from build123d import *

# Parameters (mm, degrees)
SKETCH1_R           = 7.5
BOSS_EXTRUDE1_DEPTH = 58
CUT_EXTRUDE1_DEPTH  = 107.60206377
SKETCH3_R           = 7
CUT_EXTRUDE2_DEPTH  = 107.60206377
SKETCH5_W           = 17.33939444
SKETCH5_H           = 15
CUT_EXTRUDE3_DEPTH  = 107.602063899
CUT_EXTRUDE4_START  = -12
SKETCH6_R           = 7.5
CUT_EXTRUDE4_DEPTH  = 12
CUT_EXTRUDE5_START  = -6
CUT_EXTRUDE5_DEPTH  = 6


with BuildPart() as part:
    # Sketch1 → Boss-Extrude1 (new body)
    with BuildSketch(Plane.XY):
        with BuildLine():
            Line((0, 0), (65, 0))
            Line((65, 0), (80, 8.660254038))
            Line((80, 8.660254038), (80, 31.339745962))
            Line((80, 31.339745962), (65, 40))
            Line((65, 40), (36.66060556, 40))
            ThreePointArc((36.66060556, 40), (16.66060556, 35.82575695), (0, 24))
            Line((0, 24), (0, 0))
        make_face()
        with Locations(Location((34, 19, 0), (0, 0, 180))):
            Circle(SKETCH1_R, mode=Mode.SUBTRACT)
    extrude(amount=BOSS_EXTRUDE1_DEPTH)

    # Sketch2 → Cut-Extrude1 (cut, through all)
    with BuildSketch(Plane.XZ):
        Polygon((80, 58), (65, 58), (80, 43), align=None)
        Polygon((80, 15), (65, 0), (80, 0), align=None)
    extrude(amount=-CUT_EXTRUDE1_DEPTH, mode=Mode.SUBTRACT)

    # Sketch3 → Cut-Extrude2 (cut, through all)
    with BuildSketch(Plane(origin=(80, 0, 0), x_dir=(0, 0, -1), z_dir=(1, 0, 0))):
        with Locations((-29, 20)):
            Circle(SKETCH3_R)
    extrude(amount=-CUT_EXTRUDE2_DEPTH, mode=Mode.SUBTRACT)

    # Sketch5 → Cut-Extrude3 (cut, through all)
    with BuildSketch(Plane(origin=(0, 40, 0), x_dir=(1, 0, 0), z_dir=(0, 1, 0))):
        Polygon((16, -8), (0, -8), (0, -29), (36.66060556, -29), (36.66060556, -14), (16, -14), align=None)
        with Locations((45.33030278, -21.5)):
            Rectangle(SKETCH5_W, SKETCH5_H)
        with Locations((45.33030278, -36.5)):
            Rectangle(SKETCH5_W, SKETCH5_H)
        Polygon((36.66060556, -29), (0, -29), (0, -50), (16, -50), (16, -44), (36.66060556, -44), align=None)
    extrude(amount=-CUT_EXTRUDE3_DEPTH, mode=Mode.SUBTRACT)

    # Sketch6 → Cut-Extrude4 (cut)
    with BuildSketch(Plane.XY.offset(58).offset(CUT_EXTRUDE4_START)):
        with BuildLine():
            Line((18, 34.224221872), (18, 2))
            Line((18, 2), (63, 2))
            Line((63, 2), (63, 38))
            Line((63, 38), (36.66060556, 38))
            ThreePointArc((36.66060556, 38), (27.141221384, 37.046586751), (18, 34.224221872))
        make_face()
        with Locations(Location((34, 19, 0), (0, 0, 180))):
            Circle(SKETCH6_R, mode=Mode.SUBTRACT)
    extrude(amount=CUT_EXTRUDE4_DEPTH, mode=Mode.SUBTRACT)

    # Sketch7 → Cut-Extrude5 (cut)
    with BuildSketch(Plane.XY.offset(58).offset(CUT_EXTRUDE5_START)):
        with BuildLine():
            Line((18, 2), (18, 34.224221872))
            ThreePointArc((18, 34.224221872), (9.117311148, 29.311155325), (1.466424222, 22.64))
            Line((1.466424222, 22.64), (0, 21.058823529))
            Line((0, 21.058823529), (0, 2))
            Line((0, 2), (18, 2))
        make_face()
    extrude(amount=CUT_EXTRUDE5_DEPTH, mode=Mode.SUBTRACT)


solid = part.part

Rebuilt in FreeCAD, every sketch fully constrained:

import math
import FreeCAD as App
import Part
import Sketcher
Q = App.Units.Quantity

doc = App.newDocument("Part")
body = doc.addObject("PartDesign::Body", "Body")

sketch1 = doc.addObject("Sketcher::SketchObject", "Sketch")
body.addObject(sketch1)
sketch1.AttachmentSupport = (doc.XY_Plane, [""])
sketch1.MapMode = "FlatFace"
sketch1.addGeometry([
    Part.LineSegment(App.Vector(0, 0, 0), App.Vector(65, 0, 0)),
    Part.LineSegment(App.Vector(65, 0, 0), App.Vector(80, 9, 0)),
    Part.LineSegment(App.Vector(80, 9, 0), App.Vector(80, 31, 0)),
    Part.LineSegment(App.Vector(80, 31, 0), App.Vector(65, 40, 0)),
    Part.LineSegment(App.Vector(65, 40, 0), App.Vector(37, 40, 0)),
    Part.ArcOfCircle(Part.Circle(App.Vector(37, -10, 0), App.Vector(0, 0, 1), 50), math.radians(90), math.radians(137)),
    Part.LineSegment(App.Vector(0, 24, 0), App.Vector(0, 0, 0)),
    Part.Circle(App.Vector(34, 19, 0), App.Vector(0, 0, 1), 8),
], False)
sketch1.addConstraint([
    Sketcher.Constraint("Coincident", 0, 2, 1, 1),
    Sketcher.Constraint("Coincident", 1, 2, 2, 1),
    Sketcher.Constraint("Coincident", 2, 2, 3, 1),
    Sketcher.Constraint("Coincident", 3, 2, 4, 1),
    Sketcher.Constraint("Tangent", 4, 2, 5, 1),
    Sketcher.Constraint("Coincident", 5, 2, 6, 1),
    Sketcher.Constraint("Coincident", 6, 2, 0, 1),
    Sketcher.Constraint("Horizontal", 0),
    Sketcher.Constraint("Vertical", 2),
    Sketcher.Constraint("Horizontal", 4),
    Sketcher.Constraint("Vertical", 6),
    Sketcher.Constraint("Coincident", 6, 2, -1, 1),
    Sketcher.Constraint("Vertical", 0, 2, 3, 2),
    Sketcher.Constraint("Equal", 1, 3),
    Sketcher.Constraint("Diameter", 7, Q("15 mm")),
    Sketcher.Constraint("Radius", 5, Q("50 mm")),
    Sketcher.Constraint("DistanceX", 0, 1, 0, 2, Q("65 mm")),
    Sketcher.Constraint("DistanceY", 6, 2, 6, 1, Q("24 mm")),
    Sketcher.Constraint("Angle", 1, Q("30 deg")),
    Sketcher.Constraint("DistanceY", 5, 3, -1, 1, Q("10 mm")),
    Sketcher.Constraint("DistanceX", -1, 1, 7, 3, Q("34 mm")),
    Sketcher.Constraint("DistanceY", -1, 1, 7, 3, Q("19 mm")),
    Sketcher.Constraint("DistanceX", -1, 1, 1, 2, Q("80 mm")),
])
pad1 = doc.addObject("PartDesign::Pad", "Pad")
body.addObject(pad1)
pad1.Profile = sketch1
pad1.Length = 58

sketch2 = doc.addObject("Sketcher::SketchObject", "Sketch001")
body.addObject(sketch2)
sketch2.AttachmentSupport = (doc.XZ_Plane, [""])
sketch2.MapMode = "FlatFace"
sketch2.addGeometry([
    Part.LineSegment(App.Vector(80, 58, 0), App.Vector(65, 58, 0)),
    Part.LineSegment(App.Vector(65, 58, 0), App.Vector(80, 43, 0)),
    Part.LineSegment(App.Vector(80, 43, 0), App.Vector(80, 58, 0)),
    Part.LineSegment(App.Vector(80, 15, 0), App.Vector(65, 0, 0)),
    Part.LineSegment(App.Vector(65, 0, 0), App.Vector(80, 0, 0)),
    Part.LineSegment(App.Vector(80, 0, 0), App.Vector(80, 15, 0)),
], False)
sketch2.addConstraint([
    Sketcher.Constraint("Coincident", 0, 2, 1, 1),
    Sketcher.Constraint("Coincident", 1, 2, 2, 1),
    Sketcher.Constraint("Coincident", 2, 2, 0, 1),
    Sketcher.Constraint("Coincident", 3, 2, 4, 1),
    Sketcher.Constraint("Coincident", 4, 2, 5, 1),
    Sketcher.Constraint("Coincident", 5, 2, 3, 1),
    Sketcher.Constraint("Horizontal", 0),
    Sketcher.Constraint("Vertical", 2),
    Sketcher.Constraint("Horizontal", 4),
    Sketcher.Constraint("Vertical", 5),
    Sketcher.Constraint("PointOnObject", 3, 2, -1),
    Sketcher.Constraint("Perpendicular", 1, 3),
    Sketcher.Constraint("Vertical", 0, 2, 3, 2),
    Sketcher.Constraint("Vertical", 2, 2, 4, 2),
    Sketcher.Constraint("Equal", 4, 2),
    Sketcher.Constraint("DistanceX", 0, 2, 0, 1, Q("15 mm")),
    Sketcher.Constraint("DistanceX", -1, 1, 0, 2, Q("65 mm")),
    Sketcher.Constraint("DistanceY", -1, 1, 0, 2, Q("58 mm")),
])
pocket1 = doc.addObject("PartDesign::Pocket", "Pocket")
body.addObject(pocket1)
pocket1.Profile = sketch2
pocket1.Type = "ThroughAll"

sketch3 = doc.addObject("Sketcher::SketchObject", "Sketch002")
body.addObject(sketch3)
sketch3.AttachmentSupport = (doc.YZ_Plane, [""])
sketch3.MapMode = "FlatFace"
sketch3.AttachmentOffset = App.Placement(App.Vector(0, 0, 80), App.Rotation())
sketch3.addGeometry(Part.Circle(App.Vector(20, 29, 0), App.Vector(0, 0, 1), 7), False)
sketch3.addConstraint([
    Sketcher.Constraint("Diameter", 0, Q("14 mm")),
    Sketcher.Constraint("DistanceX", -1, 1, 0, 3, Q("20 mm")),
    Sketcher.Constraint("DistanceY", -1, 1, 0, 3, Q("29 mm")),
])
pocket2 = doc.addObject("PartDesign::Pocket", "Pocket001")
body.addObject(pocket2)
pocket2.Profile = sketch3
pocket2.Type = "ThroughAll"

sketch4 = doc.addObject("Sketcher::SketchObject", "Sketch003")
body.addObject(sketch4)
sketch4.AttachmentSupport = (doc.XZ_Plane, [""])
sketch4.MapMode = "FlatFace"
sketch4.AttachmentOffset = App.Placement(App.Vector(0, 0, -40), App.Rotation())
sketch4.addGeometry([
    Part.LineSegment(App.Vector(16, 8, 0), App.Vector(0, 8, 0)),
    Part.LineSegment(App.Vector(0, 8, 0), App.Vector(0, 50, 0)),
    Part.LineSegment(App.Vector(0, 50, 0), App.Vector(16, 50, 0)),
    Part.LineSegment(App.Vector(16, 50, 0), App.Vector(16, 44, 0)),
    Part.LineSegment(App.Vector(16, 44, 0), App.Vector(54, 44, 0)),
    Part.LineSegment(App.Vector(54, 44, 0), App.Vector(54, 14, 0)),
    Part.LineSegment(App.Vector(54, 14, 0), App.Vector(16, 14, 0)),
    Part.LineSegment(App.Vector(16, 14, 0), App.Vector(16, 8, 0)),
], False)
sketch4.addConstraint([
    Sketcher.Constraint("Coincident", 0, 2, 1, 1),
    Sketcher.Constraint("Coincident", 1, 2, 2, 1),
    Sketcher.Constraint("Coincident", 2, 2, 3, 1),
    Sketcher.Constraint("Coincident", 3, 2, 4, 1),
    Sketcher.Constraint("Coincident", 4, 2, 5, 1),
    Sketcher.Constraint("Coincident", 5, 2, 6, 1),
    Sketcher.Constraint("Coincident", 6, 2, 7, 1),
    Sketcher.Constraint("Coincident", 7, 2, 0, 1),
    Sketcher.Constraint("Horizontal", 0),
    Sketcher.Constraint("Vertical", 1),
    Sketcher.Constraint("Horizontal", 2),
    Sketcher.Constraint("Vertical", 3),
    Sketcher.Constraint("Horizontal", 4),
    Sketcher.Constraint("Vertical", 5),
    Sketcher.Constraint("Horizontal", 6),
    Sketcher.Constraint("Vertical", 7),
    Sketcher.Constraint("PointOnObject", 0, 2, -2),
    Sketcher.Constraint("Vertical", 3, 2, 6, 2),
    Sketcher.Constraint("Equal", 3, 7),
    Sketcher.Constraint("DistanceX", 0, 2, 0, 1, Q("16 mm")),
    Sketcher.Constraint("DistanceX", 4, 1, 4, 2, Q("38 mm")),
    Sketcher.Constraint("DistanceY", 1, 1, 1, 2, Q("42 mm")),
    Sketcher.Constraint("DistanceY", 3, 2, 3, 1, Q("6 mm")),
    Sketcher.Constraint("DistanceY", -1, 1, 0, 2, Q("8 mm")),
])
pocket3 = doc.addObject("PartDesign::Pocket", "Pocket002")
body.addObject(pocket3)
pocket3.Profile = sketch4
pocket3.Type = "ThroughAll"
pocket3.Reversed = True

sketch5 = doc.addObject("Sketcher::SketchObject", "Sketch004")
body.addObject(sketch5)
sketch5.AttachmentSupport = (doc.XY_Plane, [""])
sketch5.MapMode = "FlatFace"
sketch5.AttachmentOffset = App.Placement(App.Vector(0, 0, 46), App.Rotation())
sketch5.addGeometry([
    Part.LineSegment(App.Vector(18, 34, 0), App.Vector(18, 2, 0)),
    Part.LineSegment(App.Vector(18, 2, 0), App.Vector(63, 2, 0)),
    Part.LineSegment(App.Vector(63, 2, 0), App.Vector(63, 38, 0)),
    Part.LineSegment(App.Vector(63, 38, 0), App.Vector(37, 38, 0)),
    Part.ArcOfCircle(Part.Circle(App.Vector(37, -10, 0), App.Vector(0, 0, 1), 48), math.radians(90), math.radians(113)),
    Part.Circle(App.Vector(34, 19, 0), App.Vector(0, 0, 1), 8),
], False)
sketch5.addConstraint([
    Sketcher.Constraint("Coincident", 0, 2, 1, 1),
    Sketcher.Constraint("Coincident", 1, 2, 2, 1),
    Sketcher.Constraint("Coincident", 2, 2, 3, 1),
    Sketcher.Constraint("Tangent", 3, 2, 4, 1),
    Sketcher.Constraint("Coincident", 4, 2, 0, 1),
    Sketcher.Constraint("Vertical", 0),
    Sketcher.Constraint("Horizontal", 1),
    Sketcher.Constraint("Vertical", 2),
    Sketcher.Constraint("Horizontal", 3),
    Sketcher.Constraint("Diameter", 5, Q("15 mm")),
    Sketcher.Constraint("Radius", 4, Q("48 mm")),
    Sketcher.Constraint("DistanceX", 1, 1, 1, 2, Q("45 mm")),
    Sketcher.Constraint("DistanceY", 2, 1, 2, 2, Q("36 mm")),
    Sketcher.Constraint("DistanceY", 4, 3, -1, 1, Q("10 mm")),
    Sketcher.Constraint("DistanceX", -1, 1, 5, 3, Q("34 mm")),
    Sketcher.Constraint("DistanceY", -1, 1, 5, 3, Q("19 mm")),
    Sketcher.Constraint("DistanceX", -1, 1, 0, 2, Q("18 mm")),
    Sketcher.Constraint("DistanceY", 0, 2, 0, 1, Q("32.224222 mm")),
])
pocket4 = doc.addObject("PartDesign::Pocket", "Pocket003")
body.addObject(pocket4)
pocket4.Profile = sketch5
pocket4.Length = 12
pocket4.Reversed = True

sketch6 = doc.addObject("Sketcher::SketchObject", "Sketch005")
body.addObject(sketch6)
sketch6.AttachmentSupport = (doc.XY_Plane, [""])
sketch6.MapMode = "FlatFace"
sketch6.AttachmentOffset = App.Placement(App.Vector(0, 0, 52), App.Rotation())
sketch6.addGeometry([
    Part.LineSegment(App.Vector(18, 2, 0), App.Vector(18, 34.2, 0)),
    Part.ArcOfCircle(Part.Circle(App.Vector(36.7, -10, 0), App.Vector(0, 0, 1), 48), math.radians(113), math.radians(137)),
    Part.LineSegment(App.Vector(1.5, 22.6, 0), App.Vector(0, 21.1, 0)),
    Part.LineSegment(App.Vector(0, 21.1, 0), App.Vector(0, 2, 0)),
    Part.LineSegment(App.Vector(0, 2, 0), App.Vector(18, 2, 0)),
], False)
sketch6.addConstraint([
    Sketcher.Constraint("Coincident", 0, 2, 1, 1),
    Sketcher.Constraint("Tangent", 1, 2, 2, 1),
    Sketcher.Constraint("Coincident", 2, 2, 3, 1),
    Sketcher.Constraint("Coincident", 3, 2, 4, 1),
    Sketcher.Constraint("Coincident", 4, 2, 0, 1),
    Sketcher.Constraint("Vertical", 0),
    Sketcher.Constraint("Vertical", 3),
    Sketcher.Constraint("Horizontal", 4),
    Sketcher.Constraint("PointOnObject", 2, 2, -2),
    Sketcher.Constraint("Radius", 1, Q("48 mm")),
    Sketcher.Constraint("DistanceX", 4, 1, 4, 2, Q("18 mm")),
    Sketcher.Constraint("DistanceY", 1, 3, -1, 1, Q("10 mm")),
    Sketcher.Constraint("DistanceY", -1, 1, 3, 2, Q("2 mm")),
    Sketcher.Constraint("DistanceY", -1, 1, 1, 2, Q("22.64 mm")),
    Sketcher.Constraint("DistanceY", 0, 1, 0, 2, Q("32.224222 mm")),
])
pocket5 = doc.addObject("PartDesign::Pocket", "Pocket004")
body.addObject(pocket5)
pocket5.Profile = sketch6
pocket5.Length = 6
pocket5.Reversed = True

doc.recompute()
